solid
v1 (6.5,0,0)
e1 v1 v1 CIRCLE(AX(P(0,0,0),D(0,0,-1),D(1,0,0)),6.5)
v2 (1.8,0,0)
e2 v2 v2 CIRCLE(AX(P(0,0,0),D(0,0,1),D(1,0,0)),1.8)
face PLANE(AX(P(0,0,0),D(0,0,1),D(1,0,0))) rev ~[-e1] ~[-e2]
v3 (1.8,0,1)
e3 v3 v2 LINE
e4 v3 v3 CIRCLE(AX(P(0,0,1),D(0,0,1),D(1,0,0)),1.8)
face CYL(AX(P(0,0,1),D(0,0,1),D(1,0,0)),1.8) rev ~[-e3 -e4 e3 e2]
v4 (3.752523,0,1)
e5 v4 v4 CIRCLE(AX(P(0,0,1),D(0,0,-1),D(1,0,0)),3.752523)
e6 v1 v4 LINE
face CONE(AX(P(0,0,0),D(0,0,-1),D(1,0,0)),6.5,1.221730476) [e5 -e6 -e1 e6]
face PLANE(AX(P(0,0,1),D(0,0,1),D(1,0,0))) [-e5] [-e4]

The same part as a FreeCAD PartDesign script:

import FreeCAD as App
import Part
import Sketcher

V = App.Vector

doc = App.newDocument("Part")
body = doc.addObject("PartDesign::Body", "Body")

# Sketch on XY plane
sketch1 = doc.addObject("Sketcher::SketchObject", "Sketch")
body.addObject(sketch1)
sketch1.AttachmentSupport = (doc.XY_Plane, [""])
sketch1.MapMode = "FlatFace"
sketch1.addGeometry(Part.Circle(V(0, 0, 0), V(0, 0, 1), 6), False)
sketch1.addConstraint(Sketcher.Constraint("Coincident", 0, 3, -1, 1))
sketch1.addConstraint(Sketcher.Constraint("Diameter", 0, 13.0))
pad1 = doc.addObject("PartDesign::Pad", "Pad")
body.addObject(pad1)
pad1.Profile = sketch1
pad1.Length = 1
pad1.TaperAngle = -70

# Sketch on XY plane
sketch2 = doc.addObject("Sketcher::SketchObject", "Sketch001")
body.addObject(sketch2)
sketch2.AttachmentSupport = (doc.XY_Plane, [""])
sketch2.MapMode = "FlatFace"
sketch2.AttachmentOffset = App.Placement(V(0, 0, 1), App.Rotation())
sketch2.addGeometry(Part.Circle(V(0, 0, 0), V(0, 0, 1), 1.8), False)
sketch2.addConstraint(Sketcher.Constraint("Coincident", 0, 3, -1, 1))
sketch2.addConstraint(Sketcher.Constraint("Diameter", 0, 3.6))
pocket1 = doc.addObject("PartDesign::Pocket", "Pocket")
body.addObject(pocket1)
pocket1.Profile = sketch2
pocket1.Length = 25

doc.recompute()
